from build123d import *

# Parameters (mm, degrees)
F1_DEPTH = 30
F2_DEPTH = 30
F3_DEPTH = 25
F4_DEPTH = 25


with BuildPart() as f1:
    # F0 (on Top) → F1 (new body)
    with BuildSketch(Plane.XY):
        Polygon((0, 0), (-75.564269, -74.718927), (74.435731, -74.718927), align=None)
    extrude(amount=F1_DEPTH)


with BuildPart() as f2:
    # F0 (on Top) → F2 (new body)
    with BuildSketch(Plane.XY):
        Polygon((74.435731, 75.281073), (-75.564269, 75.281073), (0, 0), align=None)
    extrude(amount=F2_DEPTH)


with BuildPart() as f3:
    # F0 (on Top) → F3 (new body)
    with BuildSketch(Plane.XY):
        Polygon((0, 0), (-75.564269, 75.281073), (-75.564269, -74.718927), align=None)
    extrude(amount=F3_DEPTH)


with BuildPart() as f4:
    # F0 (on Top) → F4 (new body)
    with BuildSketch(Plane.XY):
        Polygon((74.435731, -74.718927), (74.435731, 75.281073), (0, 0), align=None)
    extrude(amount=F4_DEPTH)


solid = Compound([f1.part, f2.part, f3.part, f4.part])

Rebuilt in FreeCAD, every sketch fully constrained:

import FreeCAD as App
import Part
import Sketcher
from FreeCAD import Vector
Q = App.Units.Quantity


def add_polygon(sketch, points):
    """Adds a closed chain of lines whose ends are joined by coincident constraints."""
    first, n = sketch.GeometryCount, len(points)
    for a, b in zip(points, points[1:] + points[:1]):
        sketch.addGeometry(Part.LineSegment(App.Vector(*a, 0), App.Vector(*b, 0)), False)
    for i in range(n):
        sketch.addConstraint(Sketcher.Constraint("Coincident", first + i, 2, first + (i + 1) % n, 1))

doc = App.newDocument("Part")
params = doc.addObject("Spreadsheet::Sheet", "Params")
for row, (alias, value) in enumerate([
    ("sketch1_width", "150 mm"),
    ("pad1_length", "30 mm"),
    ("sketch2_width", "150 mm"),
    ("pad2_length", "30 mm"),
    ("sketch3_height", "150 mm"),
    ("pad3_length", "25 mm"),
    ("sketch4_height", "150 mm"),
    ("pad4_length", "25 mm"),
], start=1):
    params.set(f"A{row}", alias)
    params.set(f"B{row}", "=" + value)
    params.setAlias(f"B{row}", alias)

body = doc.addObject("PartDesign::Body", "Body")

# Sketch on XY plane
sketch1 = body.newObject("Sketcher::SketchObject", "Sketch")
sketch1.AttachmentSupport = (doc.getObject("XY_Plane"), [""])
sketch1.MapMode = "FlatFace"
add_polygon(sketch1, [(0, 0), (-76, -75), (74, -75)])  # lines 0-2
sketch1.addConstraint([
    Sketcher.Constraint("Horizontal", 1),
    Sketcher.Constraint("Coincident", 2, 2, -1, 1),
    Sketcher.Constraint("DistanceX", 1, 1, 1, 2, Q("150 mm")),
    Sketcher.Constraint("Distance", 0, Q("106.267948 mm")),
    Sketcher.Constraint("Distance", 2, Q("105.46846 mm")),
])
sketch1.setExpression("Constraints[5]", "Params.sketch1_width")
pad1 = body.newObject("PartDesign::Pad", "Pad")
pad1.Profile = sketch1
pad1.setExpression("Length", "Params.pad1_length")
body2 = doc.addObject("PartDesign::Body", "Body001")

# Sketch on XY plane
sketch2 = body2.newObject("Sketcher::SketchObject", "Sketch001")
sketch2.AttachmentSupport = (doc.getObject("XY_Plane001"), [""])
sketch2.MapMode = "FlatFace"
add_polygon(sketch2, [(74, 75), (-76, 75), (0, 0)])  # lines 0-2
sketch2.addConstraint([
    Sketcher.Constraint("Horizontal", 0),
    Sketcher.Constraint("Coincident", 1, 2, -1, 1),
    Sketcher.Constraint("DistanceX", 0, 2, 0, 1, Q("150 mm")),
    Sketcher.Constraint("DistanceX", 0, 2, -1, 1, Q("75.564269 mm")),
    Sketcher.Constraint("Distance", 1, Q("106.663952 mm")),
])
sketch2.setExpression("Constraints[5]", "Params.sketch2_width")
pad2 = body2.newObject("PartDesign::Pad", "Pad001")
pad2.Profile = sketch2
pad2.setExpression("Length", "Params.pad2_length")
body3 = doc.addObject("PartDesign::Body", "Body002")

# Sketch on XY plane
sketch3 = body3.newObject("Sketcher::SketchObject", "Sketch002")
sketch3.AttachmentSupport = (doc.getObject("XY_Plane002"), [""])
sketch3.MapMode = "FlatFace"
add_polygon(sketch3, [(0, 0), (-76, 75), (-76, -75)])  # lines 0-2
sketch3.addConstraint([
    Sketcher.Constraint("Vertical", 1),
    Sketcher.Constraint("Coincident", 2, 2, -1, 1),
    Sketcher.Constraint("DistanceY", 1, 2, 1, 1, Q("150 mm")),
    Sketcher.Constraint("Distance", 2, Q("106.267948 mm")),
    Sketcher.Constraint("DistanceX", 0, 2, -1, 1, Q("75.564269 mm")),
])
sketch3.setExpression("Constraints[5]", "Params.sketch3_height")
pad3 = body3.newObject("PartDesign::Pad", "Pad002")
pad3.Profile = sketch3
pad3.setExpression("Length", "Params.pad3_length")
body4 = doc.addObject("PartDesign::Body", "Body003")

# Sketch on XY plane
sketch4 = body4.newObject("Sketcher::SketchObject", "Sketch003")
sketch4.AttachmentSupport = (doc.getObject("XY_Plane003"), [""])
sketch4.MapMode = "FlatFace"
add_polygon(sketch4, [(74, -75), (74, 75), (0, 0)])  # lines 0-2
sketch4.addConstraint([
    Sketcher.Constraint("Vertical", 0),
    Sketcher.Constraint("Coincident", 1, 2, -1, 1),
    Sketcher.Constraint("DistanceY", 0, 1, 0, 2, Q("150 mm")),
    Sketcher.Constraint("Distance", 2, Q("105.46846 mm")),
    Sketcher.Constraint("DistanceX", -1, 1, 0, 2, Q("74.435731 mm")),
])
sketch4.setExpression("Constraints[5]", "Params.sketch4_height")
pad4 = body4.newObject("PartDesign::Pad", "Pad003")
pad4.Profile = sketch4
pad4.setExpression("Length", "Params.pad4_length")

doc.recompute()
